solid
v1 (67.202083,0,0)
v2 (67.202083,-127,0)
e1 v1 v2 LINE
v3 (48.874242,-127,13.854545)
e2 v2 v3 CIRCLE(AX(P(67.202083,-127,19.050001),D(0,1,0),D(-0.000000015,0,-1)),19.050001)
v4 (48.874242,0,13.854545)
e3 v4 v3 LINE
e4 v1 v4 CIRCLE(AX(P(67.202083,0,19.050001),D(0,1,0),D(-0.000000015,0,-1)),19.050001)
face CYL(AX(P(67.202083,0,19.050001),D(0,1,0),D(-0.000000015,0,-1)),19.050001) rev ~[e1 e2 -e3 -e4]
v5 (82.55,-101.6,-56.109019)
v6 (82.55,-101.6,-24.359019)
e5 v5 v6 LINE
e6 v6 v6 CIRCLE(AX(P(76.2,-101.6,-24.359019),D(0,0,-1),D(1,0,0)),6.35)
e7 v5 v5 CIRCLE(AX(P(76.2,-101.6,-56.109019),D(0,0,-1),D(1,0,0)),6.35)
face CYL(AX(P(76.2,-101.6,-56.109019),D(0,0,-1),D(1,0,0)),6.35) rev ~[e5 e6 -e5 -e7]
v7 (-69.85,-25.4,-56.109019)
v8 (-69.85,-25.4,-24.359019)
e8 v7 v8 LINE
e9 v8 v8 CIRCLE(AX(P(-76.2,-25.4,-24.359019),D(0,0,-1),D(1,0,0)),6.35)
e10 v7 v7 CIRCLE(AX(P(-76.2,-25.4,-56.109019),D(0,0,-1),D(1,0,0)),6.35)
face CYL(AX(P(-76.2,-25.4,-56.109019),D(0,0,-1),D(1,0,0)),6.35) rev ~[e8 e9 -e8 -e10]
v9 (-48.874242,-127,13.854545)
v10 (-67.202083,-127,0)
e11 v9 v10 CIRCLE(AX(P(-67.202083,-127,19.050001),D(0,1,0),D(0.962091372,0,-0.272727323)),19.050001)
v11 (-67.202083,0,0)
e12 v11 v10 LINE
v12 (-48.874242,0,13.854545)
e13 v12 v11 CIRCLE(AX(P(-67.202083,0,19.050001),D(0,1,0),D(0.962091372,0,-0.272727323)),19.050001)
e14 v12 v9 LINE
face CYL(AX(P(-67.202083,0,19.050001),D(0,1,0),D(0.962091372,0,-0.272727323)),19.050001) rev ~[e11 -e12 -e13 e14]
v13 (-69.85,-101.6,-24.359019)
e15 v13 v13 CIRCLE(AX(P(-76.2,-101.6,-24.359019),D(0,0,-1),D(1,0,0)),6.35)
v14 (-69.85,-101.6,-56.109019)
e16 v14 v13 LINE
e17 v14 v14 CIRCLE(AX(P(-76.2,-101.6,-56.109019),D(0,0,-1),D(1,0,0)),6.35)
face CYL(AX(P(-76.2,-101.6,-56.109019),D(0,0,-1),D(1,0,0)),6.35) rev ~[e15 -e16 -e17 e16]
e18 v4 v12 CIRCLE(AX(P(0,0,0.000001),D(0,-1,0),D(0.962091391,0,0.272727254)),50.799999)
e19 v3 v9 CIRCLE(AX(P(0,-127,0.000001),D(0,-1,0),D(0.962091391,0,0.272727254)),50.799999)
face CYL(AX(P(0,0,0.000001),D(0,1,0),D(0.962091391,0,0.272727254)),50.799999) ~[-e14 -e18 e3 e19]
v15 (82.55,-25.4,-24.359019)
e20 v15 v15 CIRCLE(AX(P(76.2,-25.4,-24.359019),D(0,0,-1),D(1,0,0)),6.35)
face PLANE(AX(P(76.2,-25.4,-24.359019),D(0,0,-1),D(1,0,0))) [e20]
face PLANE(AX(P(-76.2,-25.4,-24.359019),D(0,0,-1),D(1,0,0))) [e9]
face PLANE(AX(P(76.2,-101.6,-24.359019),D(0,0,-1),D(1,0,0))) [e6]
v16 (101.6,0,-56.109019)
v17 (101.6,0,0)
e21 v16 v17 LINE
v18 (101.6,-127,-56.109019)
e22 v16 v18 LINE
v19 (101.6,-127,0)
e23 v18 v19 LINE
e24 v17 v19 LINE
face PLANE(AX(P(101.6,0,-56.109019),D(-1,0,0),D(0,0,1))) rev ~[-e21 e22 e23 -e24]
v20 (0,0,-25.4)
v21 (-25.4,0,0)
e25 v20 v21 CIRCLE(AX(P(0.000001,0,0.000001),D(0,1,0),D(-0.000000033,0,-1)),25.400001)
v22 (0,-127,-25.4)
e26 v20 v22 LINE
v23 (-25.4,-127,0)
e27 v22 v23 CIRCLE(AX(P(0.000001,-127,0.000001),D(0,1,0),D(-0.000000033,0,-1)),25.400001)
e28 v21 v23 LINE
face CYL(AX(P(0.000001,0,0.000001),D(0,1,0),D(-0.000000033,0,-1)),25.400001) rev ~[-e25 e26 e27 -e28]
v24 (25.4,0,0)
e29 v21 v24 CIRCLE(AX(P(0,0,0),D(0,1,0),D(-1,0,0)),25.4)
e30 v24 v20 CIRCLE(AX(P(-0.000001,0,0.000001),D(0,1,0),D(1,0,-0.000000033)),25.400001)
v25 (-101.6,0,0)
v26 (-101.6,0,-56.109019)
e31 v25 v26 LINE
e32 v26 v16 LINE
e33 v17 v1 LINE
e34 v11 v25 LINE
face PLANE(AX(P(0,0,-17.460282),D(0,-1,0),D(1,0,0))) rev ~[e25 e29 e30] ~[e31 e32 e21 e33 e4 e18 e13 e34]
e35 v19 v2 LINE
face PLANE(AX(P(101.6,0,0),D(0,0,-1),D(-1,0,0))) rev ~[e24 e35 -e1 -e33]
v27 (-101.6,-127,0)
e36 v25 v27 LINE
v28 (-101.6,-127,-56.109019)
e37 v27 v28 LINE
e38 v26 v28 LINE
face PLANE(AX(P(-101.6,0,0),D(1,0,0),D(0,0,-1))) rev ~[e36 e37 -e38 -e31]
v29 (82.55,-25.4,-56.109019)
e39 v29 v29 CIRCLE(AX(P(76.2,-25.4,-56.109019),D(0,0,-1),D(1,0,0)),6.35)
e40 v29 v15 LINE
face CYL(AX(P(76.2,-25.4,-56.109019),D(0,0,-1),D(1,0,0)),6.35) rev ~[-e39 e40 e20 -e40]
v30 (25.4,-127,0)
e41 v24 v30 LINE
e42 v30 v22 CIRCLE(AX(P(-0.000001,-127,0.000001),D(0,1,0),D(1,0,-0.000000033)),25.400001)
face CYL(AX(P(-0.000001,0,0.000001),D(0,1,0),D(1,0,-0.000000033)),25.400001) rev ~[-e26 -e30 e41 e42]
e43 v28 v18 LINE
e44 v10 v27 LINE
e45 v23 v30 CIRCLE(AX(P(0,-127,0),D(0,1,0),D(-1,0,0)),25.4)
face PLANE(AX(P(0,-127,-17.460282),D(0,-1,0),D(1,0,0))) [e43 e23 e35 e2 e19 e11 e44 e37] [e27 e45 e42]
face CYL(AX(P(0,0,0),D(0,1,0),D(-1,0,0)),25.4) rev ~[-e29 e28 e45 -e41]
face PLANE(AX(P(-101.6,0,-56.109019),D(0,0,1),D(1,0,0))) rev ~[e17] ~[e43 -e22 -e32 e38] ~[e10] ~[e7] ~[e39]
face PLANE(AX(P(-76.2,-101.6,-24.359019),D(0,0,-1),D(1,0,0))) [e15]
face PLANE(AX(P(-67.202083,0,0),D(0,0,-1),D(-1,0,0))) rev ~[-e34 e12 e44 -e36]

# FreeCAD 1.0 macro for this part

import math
import FreeCAD as App
import Part
import Sketcher
Q = App.Units.Quantity

doc = App.newDocument("Part")
params = doc.addObject("Spreadsheet::Sheet", "Params")
for row, (alias, value) in enumerate([
    ("sketch1_radius", "2 in"),
    ("sketch1_radius2", "1 in"),
    ("sketch1_width", "8 in"),
    ("sketch1_radius3", "0.75 in"),
    ("pad1_length", "5 in"),
    ("sketch2_diameter", "0.5 in"),
    ("pocket1_length", "1.25 in"),
], start=1):
    params.set(f"A{row}", alias)
    params.set(f"B{row}", "=" + value)
    params.setAlias(f"B{row}", alias)

body = doc.addObject("PartDesign::Body", "Body")

# Sketch on XZ plane
sketch1 = doc.addObject("Sketcher::SketchObject", "Sketch")
body.addObject(sketch1)
sketch1.AttachmentSupport = (doc.XZ_Plane, [""])
sketch1.MapMode = "FlatFace"
sketch1.addGeometry(Part.LineSegment(App.Vector(-102, -56, 0), App.Vector(102, -56, 0)), False)
sketch1.addGeometry(Part.LineSegment(App.Vector(102, -56, 0), App.Vector(102, 0, 0)), False)
sketch1.addGeometry(Part.LineSegment(App.Vector(102, 0, 0), App.Vector(67, 0, 0)), False)
sketch1.addGeometry(Part.ArcOfCircle(Part.Circle(App.Vector(67, 19, 0), App.Vector(0, 0, 1), 19), math.radians(-164), math.radians(-90)), False)
sketch1.addGeometry(Part.ArcOfCircle(Part.Circle(App.Vector(0, 0, 0), App.Vector(0, 0, 1), 51), math.radians(16), math.radians(164)), False)
sketch1.addGeometry(Part.ArcOfCircle(Part.Circle(App.Vector(-67, 19, 0), App.Vector(0, 0, 1), 19), math.radians(-90), math.radians(-16)), False)
sketch1.addGeometry(Part.LineSegment(App.Vector(-67, 0, 0), App.Vector(-102, 0, 0)), False)
sketch1.addGeometry(Part.LineSegment(App.Vector(-102, 0, 0), App.Vector(-102, -56, 0)), False)
sketch1.addGeometry(Part.ArcOfCircle(Part.Circle(App.Vector(0, 0, 0), App.Vector(0, 0, 1), 25), math.radians(-180), math.radians(-90)), False)
sketch1.addGeometry(Part.ArcOfCircle(Part.Circle(App.Vector(0, 0, 0), App.Vector(0, 0, 1), 25), math.radians(0), math.radians(180)), False)
sketch1.addGeometry(Part.ArcOfCircle(Part.Circle(App.Vector(0, 0, 0), App.Vector(0, 0, 1), 25), math.radians(-90), math.radians(0)), False)
sketch1.addConstraint(Sketcher.Constraint("Coincident", 0, 2, 1, 1))
sketch1.addConstraint(Sketcher.Constraint("Coincident", 1, 2, 2, 1))
sketch1.addConstraint(Sketcher.Constraint("Tangent", 2, 2, 3, 2))
sketch1.addConstraint(Sketcher.Constraint("Tangent", 3, 1, 4, 1))
sketch1.addConstraint(Sketcher.Constraint("Tangent", 4, 2, 5, 2))
sketch1.addConstraint(Sketcher.Constraint("Tangent", 5, 1, 6, 1))
sketch1.addConstraint(Sketcher.Constraint("Coincident", 6, 2, 7, 1))
sketch1.addConstraint(Sketcher.Constraint("Coincident", 7, 2, 0, 1))
sketch1.addConstraint(Sketcher.Constraint("Tangent", 8, 1, 9, 2))
sketch1.addConstraint(Sketcher.Constraint("Tangent", 9, 1, 10, 2))
sketch1.addConstraint(Sketcher.Constraint("Tangent", 10, 1, 8, 2))
sketch1.addConstraint(Sketcher.Constraint("Horizontal", 0))
sketch1.addConstraint(Sketcher.Constraint("Vertical", 1))
sketch1.addConstraint(Sketcher.Constraint("Horizontal", 2))
sketch1.addConstraint(Sketcher.Constraint("Horizontal", 6))
sketch1.addConstraint(Sketcher.Constraint("Vertical", 7))
sketch1.addConstraint(Sketcher.Constraint("Coincident", 4, 3, -1, 1))
sketch1.addConstraint(Sketcher.Constraint("Coincident", 8, 3, -1, 1))
sketch1.addConstraint(Sketcher.Constraint("Equal", 3, 5))
sketch1.addConstraint(Sketcher.Constraint("Symmetric", 2, 2, 5, 1, -1, 1))
sketch1.addConstraint(Sketcher.Constraint("PointOnObject", 8, 1, -1))
sketch1.addConstraint(Sketcher.Constraint("PointOnObject", 9, 1, -1))
sketch1.addConstraint(Sketcher.Constraint("PointOnObject", 10, 1, -2))
sketch1.addConstraint(Sketcher.Constraint("Equal", 2, 6))
sketch1.addConstraint(Sketcher.Constraint("Radius", 4, Q("2 in")))
sketch1.addConstraint(Sketcher.Constraint("Radius", 8, Q("1 in")))
sketch1.addConstraint(Sketcher.Constraint("DistanceX", 0, 1, 0, 2, Q("8 in")))
sketch1.addConstraint(Sketcher.Constraint("Radius", 3, Q("0.75 in")))
sketch1.addConstraint(Sketcher.Constraint("DistanceY", 1, 1, 1, 2, Q("56.109019 mm")))
sketch1.setExpression("Constraints[24]", "Params.sketch1_radius")
sketch1.setExpression("Constraints[25]", "Params.sketch1_radius2")
sketch1.setExpression("Constraints[26]", "Params.sketch1_width")
sketch1.setExpression("Constraints[27]", "Params.sketch1_radius3")
pad1 = doc.addObject("PartDesign::Pad", "Pad")
body.addObject(pad1)
pad1.Profile = sketch1
pad1.setExpression("Length", "Params.pad1_length")

# Sketch on XY plane
sketch2 = doc.addObject("Sketcher::SketchObject", "Sketch001")
body.addObject(sketch2)
sketch2.AttachmentSupport = (doc.XY_Plane, [""])
sketch2.MapMode = "FlatFace"
sketch2.AttachmentOffset = App.Placement(App.Vector(0, 0, -56.109019), App.Rotation())
sketch2.addGeometry(Part.Circle(App.Vector(-76, -102, 0), App.Vector(0, 0, 1), 6), False)
sketch2.addGeometry(Part.Circle(App.Vector(-76, -25, 0), App.Vector(0, 0, 1), 6), False)
sketch2.addGeometry(Part.Circle(App.Vector(76, -102, 0), App.Vector(0, 0, 1), 6), False)
sketch2.addGeometry(Part.Circle(App.Vector(76, -25, 0), App.Vector(0, 0, 1), 6), False)
sketch2.addConstraint(Sketcher.Constraint("Equal", 0, 1))
sketch2.addConstraint(Sketcher.Constraint("Equal", 1, 2))
sketch2.addConstraint(Sketcher.Constraint("Equal", 2, 3))
sketch2.addConstraint(Sketcher.Constraint("Symmetric", 0, 3, 2, 3, -2))
sketch2.addConstraint(Sketcher.Constraint("Symmetric", 1, 3, 3, 3, -2))
sketch2.addConstraint(Sketcher.Constraint("Vertical", 0, 3, 1, 3))
sketch2.addConstraint(Sketcher.Constraint("Diameter", 0, Q("0.5 in")))
sketch2.addConstraint(Sketcher.Constraint("DistanceX", 0, 3, -1, 1, Q("3 in")))
sketch2.addConstraint(Sketcher.Constraint("DistanceY", 0, 3, -1, 1, Q("4 in")))
sketch2.addConstraint(Sketcher.Constraint("DistanceY", 1, 3, -1, 1, Q("1 in")))
sketch2.setExpression("Constraints[6]", "Params.sketch2_diameter")
pocket1 = doc.addObject("PartDesign::Pocket", "Pocket")
body.addObject(pocket1)
pocket1.Profile = sketch2
pocket1.setExpression("Length", "Params.pocket1_length")
pocket1.Reversed = True

doc.recompute()
